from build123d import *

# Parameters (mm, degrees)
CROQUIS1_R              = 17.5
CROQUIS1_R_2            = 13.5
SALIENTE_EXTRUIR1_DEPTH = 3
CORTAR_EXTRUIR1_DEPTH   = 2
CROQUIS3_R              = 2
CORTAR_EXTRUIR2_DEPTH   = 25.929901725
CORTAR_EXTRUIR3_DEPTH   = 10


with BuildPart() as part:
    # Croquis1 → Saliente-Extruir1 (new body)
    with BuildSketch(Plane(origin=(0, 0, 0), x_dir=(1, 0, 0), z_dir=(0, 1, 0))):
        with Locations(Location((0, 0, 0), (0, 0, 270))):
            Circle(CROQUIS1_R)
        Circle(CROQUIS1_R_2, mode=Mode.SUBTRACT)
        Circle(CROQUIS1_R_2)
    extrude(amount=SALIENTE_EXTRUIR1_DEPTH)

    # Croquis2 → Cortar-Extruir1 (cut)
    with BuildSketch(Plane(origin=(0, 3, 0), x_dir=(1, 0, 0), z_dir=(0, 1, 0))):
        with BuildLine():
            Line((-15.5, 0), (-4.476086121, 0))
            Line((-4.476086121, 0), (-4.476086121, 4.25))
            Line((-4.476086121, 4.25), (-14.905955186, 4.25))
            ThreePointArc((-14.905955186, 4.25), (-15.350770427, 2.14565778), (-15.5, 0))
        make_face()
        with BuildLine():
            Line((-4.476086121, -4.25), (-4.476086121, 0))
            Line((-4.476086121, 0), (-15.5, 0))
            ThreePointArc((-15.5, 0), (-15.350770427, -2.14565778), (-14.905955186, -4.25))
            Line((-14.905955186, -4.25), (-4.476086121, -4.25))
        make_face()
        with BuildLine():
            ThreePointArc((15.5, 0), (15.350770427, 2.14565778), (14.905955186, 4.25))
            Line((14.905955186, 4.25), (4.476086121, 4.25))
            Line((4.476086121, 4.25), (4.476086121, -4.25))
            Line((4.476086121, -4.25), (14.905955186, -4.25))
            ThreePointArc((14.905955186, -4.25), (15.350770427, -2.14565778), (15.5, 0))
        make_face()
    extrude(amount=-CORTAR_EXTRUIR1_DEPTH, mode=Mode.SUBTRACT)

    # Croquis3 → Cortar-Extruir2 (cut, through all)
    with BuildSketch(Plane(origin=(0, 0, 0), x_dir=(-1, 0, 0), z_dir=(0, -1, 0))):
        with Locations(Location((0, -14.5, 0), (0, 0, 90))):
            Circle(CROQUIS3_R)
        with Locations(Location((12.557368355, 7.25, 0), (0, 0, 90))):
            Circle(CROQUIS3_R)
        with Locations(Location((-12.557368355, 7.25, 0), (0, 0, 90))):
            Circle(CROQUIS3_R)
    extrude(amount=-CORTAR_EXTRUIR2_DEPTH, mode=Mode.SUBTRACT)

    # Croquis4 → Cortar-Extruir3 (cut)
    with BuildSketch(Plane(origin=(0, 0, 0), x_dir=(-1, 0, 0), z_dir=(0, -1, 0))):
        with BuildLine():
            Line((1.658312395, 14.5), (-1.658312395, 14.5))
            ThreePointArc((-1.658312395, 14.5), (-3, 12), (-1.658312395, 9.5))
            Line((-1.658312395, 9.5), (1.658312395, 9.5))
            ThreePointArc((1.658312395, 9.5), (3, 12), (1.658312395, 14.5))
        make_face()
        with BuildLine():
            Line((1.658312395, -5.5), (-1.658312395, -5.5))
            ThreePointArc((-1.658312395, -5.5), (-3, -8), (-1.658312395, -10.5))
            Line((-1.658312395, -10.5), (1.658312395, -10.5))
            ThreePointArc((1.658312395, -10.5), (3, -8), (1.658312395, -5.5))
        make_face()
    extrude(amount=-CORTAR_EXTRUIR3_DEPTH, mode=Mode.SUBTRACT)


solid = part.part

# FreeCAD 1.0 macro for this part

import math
import FreeCAD as App
import Part
import Sketcher
Q = App.Units.Quantity

doc = App.newDocument("Part")
body = doc.addObject("PartDesign::Body", "Body")

sketch1 = doc.addObject("Sketcher::SketchObject", "Sketch")
body.addObject(sketch1)
sketch1.AttachmentSupport = (doc.XZ_Plane, [""])
sketch1.MapMode = "FlatFace"
sketch1.addGeometry(Part.Circle(App.Vector(0, 0, 0), App.Vector(0, 0, 1), 18), False)
sketch1.addConstraint(Sketcher.Constraint("Coincident", 0, 3, -1, 1))
sketch1.addConstraint(Sketcher.Constraint("Diameter", 0, Q("35 mm")))
pad1 = doc.addObject("PartDesign::Pad", "Pad")
body.addObject(pad1)
pad1.Profile = sketch1
pad1.Length = 3
pad1.Reversed = True

sketch2 = doc.addObject("Sketcher::SketchObject", "Sketch001")
body.addObject(sketch2)
sketch2.AttachmentSupport = (doc.XZ_Plane, [""])
sketch2.MapMode = "FlatFace"
sketch2.AttachmentOffset = App.Placement(App.Vector(0, 0, -3), App.Rotation())
sketch2.addGeometry(Part.LineSegment(App.Vector(-4.5, -4.2, 0), App.Vector(-14.9, -4.2, 0)), False)
sketch2.addGeometry(Part.ArcOfCircle(Part.Circle(App.Vector(0, 0, 0), App.Vector(0, 0, 1), 15.5), math.radians(180), math.radians(195.91)), False)
sketch2.addGeometry(Part.ArcOfCircle(Part.Circle(App.Vector(0, 0, 0), App.Vector(0, 0, 1), 15.5), math.radians(164.09), math.radians(180)), False)
sketch2.addGeometry(Part.LineSegment(App.Vector(-14.9, 4.2, 0), App.Vector(-4.5, 4.2, 0)), False)
sketch2.addGeometry(Part.LineSegment(App.Vector(-4.5, 4.2, 0), App.Vector(-4.5, -4.2, 0)), False)
sketch2.addGeometry(Part.ArcOfCircle(Part.Circle(App.Vector(0, 0, 0), App.Vector(0, 0, 1), 15.5), math.radians(-15.91), math.radians(0)), False)
sketch2.addGeometry(Part.LineSegment(App.Vector(14.9, -4.2, 0), App.Vector(4.5, -4.2, 0)), False)
sketch2.addGeometry(Part.LineSegment(App.Vector(4.5, -4.2, 0), App.Vector(4.5, 4.2, 0)), False)
sketch2.addGeometry(Part.LineSegment(App.Vector(4.5, 4.2, 0), App.Vector(14.9, 4.2, 0)), False)
sketch2.addGeometry(Part.ArcOfCircle(Part.Circle(App.Vector(0, 0, 0), App.Vector(0, 0, 1), 15.5), math.radians(0), math.radians(15.91)), False)
sketch2.addConstraint(Sketcher.Constraint("Coincident", 0, 2, 1, 2))
sketch2.addConstraint(Sketcher.Constraint("Tangent", 1, 1, 2, 2))
sketch2.addConstraint(Sketcher.Constraint("Coincident", 2, 1, 3, 1))
sketch2.addConstraint(Sketcher.Constraint("Coincident", 3, 2, 4, 1))
sketch2.addConstraint(Sketcher.Constraint("Coincident", 4, 2, 0, 1))
sketch2.addConstraint(Sketcher.Constraint("Coincident", 5, 1, 6, 1))
sketch2.addConstraint(Sketcher.Constraint("Coincident", 6, 2, 7, 1))
sketch2.addConstraint(Sketcher.Constraint("Coincident", 7, 2, 8, 1))
sketch2.addConstraint(Sketcher.Constraint("Coincident", 8, 2, 9, 2))
sketch2.addConstraint(Sketcher.Constraint("Tangent", 9, 1, 5, 2))
sketch2.addConstraint(Sketcher.Constraint("Horizontal", 0))
sketch2.addConstraint(Sketcher.Constraint("Horizontal", 3))
sketch2.addConstraint(Sketcher.Constraint("Vertical", 4))
sketch2.addConstraint(Sketcher.Constraint("Horizontal", 6))
sketch2.addConstraint(Sketcher.Constraint("Vertical", 7))
sketch2.addConstraint(Sketcher.Constraint("Horizontal", 8))
sketch2.addConstraint(Sketcher.Constraint("Coincident", 1, 3, -1, 1))
sketch2.addConstraint(Sketcher.Constraint("Coincident", 5, 3, -1, 1))
sketch2.addConstraint(Sketcher.Constraint("Equal", 1, 2))
sketch2.addConstraint(Sketcher.Constraint("Equal", 2, 5))
sketch2.addConstraint(Sketcher.Constraint("Equal", 5, 9))
sketch2.addConstraint(Sketcher.Constraint("Symmetric", 3, 2, 6, 2, -1, 1))
sketch2.addConstraint(Sketcher.Constraint("PointOnObject", 1, 1, -1))
sketch2.addConstraint(Sketcher.Constraint("PointOnObject", 9, 1, -1))
sketch2.addConstraint(Sketcher.Constraint("Horizontal", 4, 2, 5, 1))
sketch2.addConstraint(Sketcher.Constraint("Horizontal", 3, 2, 7, 2))
sketch2.addConstraint(Sketcher.Constraint("Radius", 1, Q("15.5 mm")))
sketch2.addConstraint(Sketcher.Constraint("DistanceY", 4, 2, 4, 1, Q("8.5 mm")))
sketch2.addConstraint(Sketcher.Constraint("DistanceX", 0, 2, 0, 1, Q("10.429869 mm")))
pocket1 = doc.addObject("PartDesign::Pocket", "Pocket")
body.addObject(pocket1)
pocket1.Profile = sketch2
pocket1.Length = 2
pocket1.Reversed = True

sketch3 = doc.addObject("Sketcher::SketchObject", "Sketch002")
body.addObject(sketch3)
sketch3.AttachmentSupport = (doc.XZ_Plane, [""])
sketch3.MapMode = "FlatFace"
sketch3.addGeometry(Part.Circle(App.Vector(0, 14.5, 0), App.Vector(0, 0, 1), 2), False)
sketch3.addGeometry(Part.Circle(App.Vector(-12.6, -7.2, 0), App.Vector(0, 0, 1), 2), False)
sketch3.addGeometry(Part.Circle(App.Vector(12.6, -7.2, 0), App.Vector(0, 0, 1), 2), False)
sketch3.addConstraint(Sketcher.Constraint("Equal", 0, 1))
sketch3.addConstraint(Sketcher.Constraint("Equal", 1, 2))
sketch3.addConstraint(Sketcher.Constraint("Symmetric", 1, 3, 2, 3, -2))
sketch3.addConstraint(Sketcher.Constraint("PointOnObject", 0, 3, -2))
sketch3.addConstraint(Sketcher.Constraint("Diameter", 0, Q("4 mm")))
sketch3.addConstraint(Sketcher.Constraint("DistanceY", -1, 1, 0, 3, Q("14.5 mm")))
sketch3.addConstraint(Sketcher.Constraint("DistanceY", 1, 3, -1, 1, Q("7.25 mm")))
sketch3.addConstraint(Sketcher.Constraint("DistanceX", 1, 3, -1, 1, Q("12.557368 mm")))
pocket2 = doc.addObject("PartDesign::Pocket", "Pocket001")
body.addObject(pocket2)
pocket2.Profile = sketch3
pocket2.Type = "ThroughAll"

sketch4 = doc.addObject("Sketcher::SketchObject", "Sketch003")
body.addObject(sketch4)
sketch4.AttachmentSupport = (doc.XZ_Plane, [""])
sketch4.MapMode = "FlatFace"
sketch4.addGeometry(Part.LineSegment(App.Vector(-1.7, -14.5, 0), App.Vector(1.7, -14.5, 0)), False)
sketch4.addGeometry(Part.ArcOfCircle(Part.Circle(App.Vector(0, -12, 0), App.Vector(0, 0, 1), 3), math.radians(-56), math.radians(56)), False)
sketch4.addGeometry(Part.LineSegment(App.Vector(1.7, -9.5, 0), App.Vector(-1.7, -9.5, 0)), False)
sketch4.addGeometry(Part.ArcOfCircle(Part.Circle(App.Vector(0, -12, 0), App.Vector(0, 0, 1), 3), math.radians(124), math.radians(236)), False)
sketch4.addGeometry(Part.LineSegment(App.Vector(-1.7, 5.5, 0), App.Vector(1.7, 5.5, 0)), False)
sketch4.addGeometry(Part.ArcOfCircle(Part.Circle(App.Vector(0, 8, 0), App.Vector(0, 0, 1), 3), math.radians(-56), math.radians(56)), False)
sketch4.addGeometry(Part.LineSegment(App.Vector(1.7, 10.5, 0), App.Vector(-1.7, 10.5, 0)), False)
sketch4.addGeometry(Part.ArcOfCircle(Part.Circle(App.Vector(0, 8, 0), App.Vector(0, 0, 1), 3), math.radians(124), math.radians(236)), False)
sketch4.addConstraint(Sketcher.Constraint("Coincident", 0, 2, 1, 1))
sketch4.addConstraint(Sketcher.Constraint("Coincident", 1, 2, 2, 1))
sketch4.addConstraint(Sketcher.Constraint("Coincident", 2, 2, 3, 1))
sketch4.addConstraint(Sketcher.Constraint("Coincident", 3, 2, 0, 1))
sketch4.addConstraint(Sketcher.Constraint("Coincident", 4, 2, 5, 1))
sketch4.addConstraint(Sketcher.Constraint("Coincident", 5, 2, 6, 1))
sketch4.addConstraint(Sketcher.Constraint("Coincident", 6, 2, 7, 1))
sketch4.addConstraint(Sketcher.Constraint("Coincident", 7, 2, 4, 1))
sketch4.addConstraint(Sketcher.Constraint("Horizontal", 0))
sketch4.addConstraint(Sketcher.Constraint("Horizontal", 2))
sketch4.addConstraint(Sketcher.Constraint("Horizontal", 4))
sketch4.addConstraint(Sketcher.Constraint("Horizontal", 6))
sketch4.addConstraint(Sketcher.Constraint("Coincident", 3, 3, 1, 3))
sketch4.addConstraint(Sketcher.Constraint("Coincident", 7, 3, 5, 3))
sketch4.addConstraint(Sketcher.Constraint("Equal", 1, 3))
sketch4.addConstraint(Sketcher.Constraint("Equal", 3, 5))
sketch4.addConstraint(Sketcher.Constraint("Equal", 5, 7))
sketch4.addConstraint(Sketcher.Constraint("PointOnObject", 1, 3, -2))
sketch4.addConstraint(Sketcher.Constraint("PointOnObject", 5, 3, -2))
sketch4.addConstraint(Sketcher.Constraint("Vertical", 0, 2, 1, 2))
sketch4.addConstraint(Sketcher.Constraint("Vertical", 1, 2, 4, 2))
sketch4.addConstraint(Sketcher.Constraint("Vertical", 4, 2, 5, 2))
sketch4.addConstraint(Sketcher.Constraint("Radius", 1, Q("3 mm")))
sketch4.addConstraint(Sketcher.Constraint("DistanceY", 1, 3, -1, 1, Q("12 mm")))
sketch4.addConstraint(Sketcher.Constraint("DistanceY", -1, 1, 5, 3, Q("8 mm")))
sketch4.addConstraint(Sketcher.Constraint("DistanceY", 0, 2, 1, 2, Q("5 mm")))
pocket3 = doc.addObject("PartDesign::Pocket", "Pocket002")
body.addObject(pocket3)
pocket3.Profile = sketch4
pocket3.Length = 10

doc.recompute()
